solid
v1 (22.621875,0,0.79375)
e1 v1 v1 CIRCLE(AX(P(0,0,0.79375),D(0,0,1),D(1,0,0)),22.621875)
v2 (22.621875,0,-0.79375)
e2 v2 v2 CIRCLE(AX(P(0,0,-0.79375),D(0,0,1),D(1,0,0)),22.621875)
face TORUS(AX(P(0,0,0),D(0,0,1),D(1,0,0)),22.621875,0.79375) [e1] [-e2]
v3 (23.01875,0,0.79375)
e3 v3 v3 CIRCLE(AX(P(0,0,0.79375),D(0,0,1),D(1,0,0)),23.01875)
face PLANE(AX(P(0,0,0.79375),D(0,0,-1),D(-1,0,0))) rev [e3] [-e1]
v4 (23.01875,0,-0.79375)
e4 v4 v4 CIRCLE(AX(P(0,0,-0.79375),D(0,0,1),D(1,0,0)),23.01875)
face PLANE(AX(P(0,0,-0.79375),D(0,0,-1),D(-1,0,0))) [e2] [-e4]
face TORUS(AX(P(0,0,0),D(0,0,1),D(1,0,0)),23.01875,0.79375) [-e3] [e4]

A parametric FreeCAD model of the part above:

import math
import FreeCAD as App
import Part
import Sketcher
from FreeCAD import Vector
Q = App.Units.Quantity

doc = App.newDocument("Part")
body = doc.addObject("PartDesign::Body", "Body")

sketch1 = doc.addObject("Sketcher::SketchObject", "Sketch")
body.addObject(sketch1)
sketch1.AttachmentSupport = (doc.XZ_Plane, [""])
sketch1.MapMode = "FlatFace"
sketch1.addGeometry(Part.LineSegment(Vector(22.621875, 0.79375, 0), Vector(23.01875, 0.79375, 0)), False)
sketch1.addGeometry(Part.ArcOfCircle(Part.Circle(Vector(23.01875, 0, 0), Vector(0, 0, 1), 0.79375), math.radians(-90), math.radians(90)), False)
sketch1.addGeometry(Part.LineSegment(Vector(23.01875, -0.79375, 0), Vector(22.621875, -0.79375, 0)), False)
sketch1.addGeometry(Part.ArcOfCircle(Part.Circle(Vector(22.621875, 0, 0), Vector(0, 0, 1), 0.79375), math.radians(90), math.radians(270)), False)
sketch1.addConstraint(Sketcher.Constraint("Tangent", 0, 2, 1, 2))
sketch1.addConstraint(Sketcher.Constraint("Tangent", 1, 1, 2, 1))
sketch1.addConstraint(Sketcher.Constraint("Tangent", 2, 2, 3, 2))
sketch1.addConstraint(Sketcher.Constraint("Tangent", 3, 1, 0, 1))
sketch1.addConstraint(Sketcher.Constraint("Horizontal", 0))
sketch1.addConstraint(Sketcher.Constraint("Horizontal", 2))
sketch1.addConstraint(Sketcher.Constraint("PointOnObject", 1, 3, -1))
sketch1.addConstraint(Sketcher.Constraint("Radius", 1, Q("0.03125 in")))
sketch1.addConstraint(Sketcher.Constraint("DistanceX", 0, 1, 0, 2, Q("0.015625 in")))
sketch1.addConstraint(Sketcher.Constraint("DistanceX", -1, 1, 1, 3, Q("0.90625 in")))
revolution = doc.addObject("PartDesign::Revolution", "Revolution")
body.addObject(revolution)
revolution.Profile = sketch1
revolution.ReferenceAxis = (sketch1, ["V_Axis"])
revolution.Angle = 360

doc.recompute()
